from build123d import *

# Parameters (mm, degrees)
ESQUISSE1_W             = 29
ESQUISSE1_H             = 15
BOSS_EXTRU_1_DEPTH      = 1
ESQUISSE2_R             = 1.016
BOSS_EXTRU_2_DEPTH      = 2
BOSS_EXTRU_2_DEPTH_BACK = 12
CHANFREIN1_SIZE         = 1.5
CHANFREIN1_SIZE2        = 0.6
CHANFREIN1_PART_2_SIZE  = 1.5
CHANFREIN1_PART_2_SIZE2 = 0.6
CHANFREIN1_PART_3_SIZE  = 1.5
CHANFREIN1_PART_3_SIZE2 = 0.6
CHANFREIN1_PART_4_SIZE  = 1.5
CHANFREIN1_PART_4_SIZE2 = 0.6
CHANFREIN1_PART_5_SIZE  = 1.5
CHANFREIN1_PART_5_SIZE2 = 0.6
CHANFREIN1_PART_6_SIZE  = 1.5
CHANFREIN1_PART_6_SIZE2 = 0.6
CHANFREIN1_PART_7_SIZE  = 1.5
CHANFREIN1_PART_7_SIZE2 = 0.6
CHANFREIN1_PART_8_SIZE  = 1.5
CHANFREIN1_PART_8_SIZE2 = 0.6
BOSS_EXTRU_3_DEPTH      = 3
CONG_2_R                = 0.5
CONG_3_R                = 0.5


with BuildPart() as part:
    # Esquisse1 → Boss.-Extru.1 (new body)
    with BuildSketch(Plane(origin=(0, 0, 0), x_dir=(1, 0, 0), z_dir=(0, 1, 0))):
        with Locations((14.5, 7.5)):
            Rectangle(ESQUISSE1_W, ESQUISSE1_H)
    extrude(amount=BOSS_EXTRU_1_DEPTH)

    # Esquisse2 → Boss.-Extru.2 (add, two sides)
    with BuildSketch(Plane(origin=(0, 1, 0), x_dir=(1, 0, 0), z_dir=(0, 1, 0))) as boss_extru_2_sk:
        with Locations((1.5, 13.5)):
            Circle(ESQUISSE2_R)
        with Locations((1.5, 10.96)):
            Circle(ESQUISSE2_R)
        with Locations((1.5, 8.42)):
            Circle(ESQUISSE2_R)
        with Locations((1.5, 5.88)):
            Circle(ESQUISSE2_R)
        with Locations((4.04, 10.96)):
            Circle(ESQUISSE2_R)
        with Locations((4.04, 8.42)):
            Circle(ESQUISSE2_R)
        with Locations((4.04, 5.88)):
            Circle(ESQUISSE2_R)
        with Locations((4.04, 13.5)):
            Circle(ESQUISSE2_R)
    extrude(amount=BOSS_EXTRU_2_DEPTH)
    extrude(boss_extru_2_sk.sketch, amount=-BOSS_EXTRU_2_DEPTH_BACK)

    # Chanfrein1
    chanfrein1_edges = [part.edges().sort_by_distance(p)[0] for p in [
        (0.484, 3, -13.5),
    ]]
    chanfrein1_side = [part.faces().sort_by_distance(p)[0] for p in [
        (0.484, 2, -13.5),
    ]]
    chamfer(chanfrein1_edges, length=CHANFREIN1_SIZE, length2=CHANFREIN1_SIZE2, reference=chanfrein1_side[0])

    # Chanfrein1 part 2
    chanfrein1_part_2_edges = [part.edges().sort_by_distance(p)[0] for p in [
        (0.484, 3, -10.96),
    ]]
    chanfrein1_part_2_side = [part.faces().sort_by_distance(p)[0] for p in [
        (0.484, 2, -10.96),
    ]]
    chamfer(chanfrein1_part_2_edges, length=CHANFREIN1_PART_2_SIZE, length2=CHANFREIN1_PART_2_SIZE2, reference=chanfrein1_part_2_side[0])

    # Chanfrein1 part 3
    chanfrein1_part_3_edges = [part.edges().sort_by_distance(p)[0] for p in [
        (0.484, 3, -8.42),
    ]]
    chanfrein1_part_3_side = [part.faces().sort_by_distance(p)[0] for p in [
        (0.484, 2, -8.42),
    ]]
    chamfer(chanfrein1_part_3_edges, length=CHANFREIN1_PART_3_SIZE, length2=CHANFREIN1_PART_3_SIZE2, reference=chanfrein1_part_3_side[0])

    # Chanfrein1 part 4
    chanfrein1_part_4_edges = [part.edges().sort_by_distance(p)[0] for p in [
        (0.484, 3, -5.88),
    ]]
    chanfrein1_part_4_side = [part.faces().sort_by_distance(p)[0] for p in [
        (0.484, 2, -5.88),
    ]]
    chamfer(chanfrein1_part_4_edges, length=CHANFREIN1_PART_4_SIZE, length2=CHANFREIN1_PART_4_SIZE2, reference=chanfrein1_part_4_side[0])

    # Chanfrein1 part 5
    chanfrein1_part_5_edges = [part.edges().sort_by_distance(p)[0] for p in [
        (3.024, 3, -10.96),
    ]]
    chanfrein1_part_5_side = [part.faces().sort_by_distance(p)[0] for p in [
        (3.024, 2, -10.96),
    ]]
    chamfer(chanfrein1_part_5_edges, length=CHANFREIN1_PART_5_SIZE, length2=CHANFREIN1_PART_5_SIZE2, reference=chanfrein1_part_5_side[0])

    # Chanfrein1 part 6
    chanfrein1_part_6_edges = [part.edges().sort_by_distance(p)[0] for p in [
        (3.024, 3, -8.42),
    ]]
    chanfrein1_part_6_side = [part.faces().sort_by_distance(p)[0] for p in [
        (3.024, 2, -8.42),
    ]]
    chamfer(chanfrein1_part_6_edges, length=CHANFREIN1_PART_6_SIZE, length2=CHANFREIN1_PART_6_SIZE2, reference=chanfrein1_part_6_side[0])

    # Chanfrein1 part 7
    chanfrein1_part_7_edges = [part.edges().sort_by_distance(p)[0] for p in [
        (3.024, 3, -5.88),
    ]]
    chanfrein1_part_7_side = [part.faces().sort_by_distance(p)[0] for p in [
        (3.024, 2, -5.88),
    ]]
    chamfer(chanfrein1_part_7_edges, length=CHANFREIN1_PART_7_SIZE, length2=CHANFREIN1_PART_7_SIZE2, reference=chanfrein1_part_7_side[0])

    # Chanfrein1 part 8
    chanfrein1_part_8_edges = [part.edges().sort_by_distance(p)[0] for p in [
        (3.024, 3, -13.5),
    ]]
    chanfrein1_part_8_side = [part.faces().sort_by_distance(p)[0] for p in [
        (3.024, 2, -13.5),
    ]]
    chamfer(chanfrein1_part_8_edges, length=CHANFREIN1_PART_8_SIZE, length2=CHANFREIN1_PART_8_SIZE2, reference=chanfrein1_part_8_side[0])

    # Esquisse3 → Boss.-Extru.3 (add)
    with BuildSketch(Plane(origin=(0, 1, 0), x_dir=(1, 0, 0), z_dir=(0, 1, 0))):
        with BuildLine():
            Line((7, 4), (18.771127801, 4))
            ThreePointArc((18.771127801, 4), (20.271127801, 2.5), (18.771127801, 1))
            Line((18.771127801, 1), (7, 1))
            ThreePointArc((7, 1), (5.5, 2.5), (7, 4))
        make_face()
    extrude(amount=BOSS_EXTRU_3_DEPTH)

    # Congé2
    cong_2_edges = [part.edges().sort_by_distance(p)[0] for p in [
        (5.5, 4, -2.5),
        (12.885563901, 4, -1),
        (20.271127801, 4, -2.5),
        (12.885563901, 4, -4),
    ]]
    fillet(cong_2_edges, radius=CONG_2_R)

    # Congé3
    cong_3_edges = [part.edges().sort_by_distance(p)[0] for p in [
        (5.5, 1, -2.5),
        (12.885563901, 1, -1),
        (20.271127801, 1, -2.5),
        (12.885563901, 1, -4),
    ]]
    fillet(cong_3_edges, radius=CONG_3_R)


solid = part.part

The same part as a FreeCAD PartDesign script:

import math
import FreeCAD as App
import Part
import Sketcher

V = App.Vector
Q = App.Units.Quantity


def edges_at(feature, points):
    """Names of the edges that pass closest to the given points."""
    edges = feature.Shape.Edges
    near = lambda p: min(range(len(edges)), key=lambda i: edges[i].distToShape(Part.Vertex(*p))[0])
    return sorted({f"Edge{near(p) + 1}" for p in points})


def add_polygon(sketch, points):
    """Adds a closed chain of lines whose ends are joined by coincident constraints."""
    first, n = sketch.GeometryCount, len(points)
    for a, b in zip(points, points[1:] + points[:1]):
        sketch.addGeometry(Part.LineSegment(App.Vector(*a, 0), App.Vector(*b, 0)), False)
    for i in range(n):
        sketch.addConstraint(Sketcher.Constraint("Coincident", first + i, 2, first + (i + 1) % n, 1))

doc = App.newDocument("Part")
body = doc.addObject("PartDesign::Body", "Body")

sketch1 = body.newObject("Sketcher::SketchObject", "Sketch")
sketch1.AttachmentSupport = (doc.getObject("XZ_Plane"), [""])
sketch1.MapMode = "FlatFace"
add_polygon(sketch1, [(0, -15), (0, 0), (29, 0), (29, -15)])
sketch1.addConstraint([
    Sketcher.Constraint("Vertical", 0),
    Sketcher.Constraint("Horizontal", 1),
    Sketcher.Constraint("Vertical", 2),
    Sketcher.Constraint("Horizontal", 3),
    Sketcher.Constraint("Coincident", 0, 2, -1, 1),
    Sketcher.Constraint("DistanceX", 1, 1, 1, 2, Q("29 mm")),
    Sketcher.Constraint("DistanceY", 0, 1, 0, 2, Q("15 mm")),
])
pad1 = body.newObject("PartDesign::Pad", "Pad")
pad1.Profile = sketch1
pad1.Length = 1
pad1.Reversed = True

sketch2 = body.newObject("Sketcher::SketchObject", "Sketch001")
sketch2.AttachmentSupport = (doc.getObject("XZ_Plane"), [""])
sketch2.MapMode = "FlatFace"
sketch2.AttachmentOffset = App.Placement(V(0, 0, -1), App.Rotation())
sketch2.addGeometry([
    Part.Circle(V(1.5, -13.5, 0), V(0, 0, 1), 1.016),
    Part.Circle(V(1.5, -10.96, 0), V(0, 0, 1), 1.016),
    Part.Circle(V(1.5, -8.42, 0), V(0, 0, 1), 1.016),
    Part.Circle(V(1.5, -5.88, 0), V(0, 0, 1), 1.016),
    Part.Circle(V(4.04, -10.96, 0), V(0, 0, 1), 1.016),
    Part.Circle(V(4.04, -8.42, 0), V(0, 0, 1), 1.016),
    Part.Circle(V(4.04, -5.88, 0), V(0, 0, 1), 1.016),
    Part.Circle(V(4.04, -13.5, 0), V(0, 0, 1), 1.016),
], False)
sketch2.addConstraint([
    Sketcher.Constraint("Equal", 0, 1),
    Sketcher.Constraint("Equal", 1, 2),
    Sketcher.Constraint("Equal", 2, 3),
    Sketcher.Constraint("Equal", 3, 4),
    Sketcher.Constraint("Equal", 4, 5),
    Sketcher.Constraint("Equal", 5, 6),
    Sketcher.Constraint("Equal", 6, 7),
    Sketcher.Constraint("Horizontal", 1, 3, 4, 3),
    Sketcher.Constraint("Horizontal", 2, 3, 5, 3),
    Sketcher.Constraint("Horizontal", 3, 3, 6, 3),
    Sketcher.Constraint("Horizontal", 0, 3, 7, 3),
    Sketcher.Constraint("Vertical", 0, 3, 1, 3),
    Sketcher.Constraint("Vertical", 1, 3, 2, 3),
    Sketcher.Constraint("Vertical", 2, 3, 3, 3),
    Sketcher.Constraint("Vertical", 4, 3, 5, 3),
    Sketcher.Constraint("Vertical", 5, 3, 6, 3),
    Sketcher.Constraint("Vertical", 6, 3, 7, 3),
    Sketcher.Constraint("Diameter", 0, Q("2.032 mm")),
    Sketcher.Constraint("DistanceX", -1, 1, 0, 3, Q("1.5 mm")),
    Sketcher.Constraint("DistanceY", 0, 3, -1, 1, Q("13.5 mm")),
    Sketcher.Constraint("DistanceY", 1, 3, -1, 1, Q("10.96 mm")),
    Sketcher.Constraint("DistanceY", 2, 3, -1, 1, Q("8.42 mm")),
    Sketcher.Constraint("DistanceY", 3, 3, -1, 1, Q("5.88 mm")),
    Sketcher.Constraint("DistanceX", -1, 1, 4, 3, Q("4.04 mm")),
])
pad2 = body.newObject("PartDesign::Pad", "Pad001")
pad2.Profile = sketch2
pad2.Type = "TwoLengths"
pad2.Length = 2
pad2.Length2 = 12
pad2.Reversed = True
doc.recompute()

chamfer = body.newObject("PartDesign::Chamfer", "Chamfer")
chamfer.Base = (pad2, edges_at(pad2, [(0.484, 3, -13.5)]))
chamfer.ChamferType = "Two distances"
chamfer.Size = 1.5
chamfer.Size2 = 0.6
doc.recompute()

chamfer2 = body.newObject("PartDesign::Chamfer", "Chamfer001")
chamfer2.Base = (chamfer, edges_at(chamfer, [(0.484, 3, -10.96)]))
chamfer2.ChamferType = "Two distances"
chamfer2.Size = 1.5
chamfer2.Size2 = 0.6
doc.recompute()

chamfer3 = body.newObject("PartDesign::Chamfer", "Chamfer002")
chamfer3.Base = (chamfer2, edges_at(chamfer2, [(0.484, 3, -8.42)]))
chamfer3.ChamferType = "Two distances"
chamfer3.Size = 1.5
chamfer3.Size2 = 0.6
doc.recompute()

chamfer4 = body.newObject("PartDesign::Chamfer", "Chamfer003")
chamfer4.Base = (chamfer3, edges_at(chamfer3, [(0.484, 3, -5.88)]))
chamfer4.ChamferType = "Two distances"
chamfer4.Size = 1.5
chamfer4.Size2 = 0.6
doc.recompute()

chamfer5 = body.newObject("PartDesign::Chamfer", "Chamfer004")
chamfer5.Base = (chamfer4, edges_at(chamfer4, [(3.024, 3, -10.96)]))
chamfer5.ChamferType = "Two distances"
chamfer5.Size = 1.5
chamfer5.Size2 = 0.6
doc.recompute()

chamfer6 = body.newObject("PartDesign::Chamfer", "Chamfer005")
chamfer6.Base = (chamfer5, edges_at(chamfer5, [(3.024, 3, -8.42)]))
chamfer6.ChamferType = "Two distances"
chamfer6.Size = 1.5
chamfer6.Size2 = 0.6
doc.recompute()

chamfer7 = body.newObject("PartDesign::Chamfer", "Chamfer006")
chamfer7.Base = (chamfer6, edges_at(chamfer6, [(3.024, 3, -5.88)]))
chamfer7.ChamferType = "Two distances"
chamfer7.Size = 1.5
chamfer7.Size2 = 0.6
doc.recompute()

chamfer8 = body.newObject("PartDesign::Chamfer", "Chamfer007")
chamfer8.Base = (chamfer7, edges_at(chamfer7, [(3.024, 3, -13.5)]))
chamfer8.ChamferType = "Two distances"
chamfer8.Size = 1.5
chamfer8.Size2 = 0.6

sketch3 = body.newObject("Sketcher::SketchObject", "Sketch002")
sketch3.AttachmentSupport = (doc.getObject("XZ_Plane"), [""])
sketch3.MapMode = "FlatFace"
sketch3.AttachmentOffset = App.Placement(V(0, 0, -1), App.Rotation())
sketch3.addGeometry([
    Part.LineSegment(V(18.771128, -4, 0), V(7, -4, 0)),
    Part.ArcOfCircle(Part.Circle(V(7, -2.5, 0), V(0, 0, 1), 1.5), math.radians(90), math.radians(270)),
    Part.LineSegment(V(7, -1, 0), V(18.771128, -1, 0)),
    Part.ArcOfCircle(Part.Circle(V(18.771128, -2.5, 0), V(0, 0, 1), 1.5), math.radians(-90), math.radians(90)),
], False)
sketch3.addConstraint([
    Sketcher.Constraint("Tangent", 0, 2, 1, 2),
    Sketcher.Constraint("Tangent", 1, 1, 2, 1),
    Sketcher.Constraint("Tangent", 2, 2, 3, 2),
    Sketcher.Constraint("Tangent", 3, 1, 0, 1),
    Sketcher.Constraint("Horizontal", 0),
    Sketcher.Constraint("Horizontal", 2),
    Sketcher.Constraint("Radius", 1, Q("1.5 mm")),
    Sketcher.Constraint("DistanceX", -1, 1, 1, 3, Q("7 mm")),
    Sketcher.Constraint("DistanceY", 0, 2, -1, 1, Q("4 mm")),
    Sketcher.Constraint("DistanceX", 0, 2, 0, 1, Q("11.771128 mm")),
])
pad3 = body.newObject("PartDesign::Pad", "Pad002")
pad3.Profile = sketch3
pad3.Length = 3
pad3.Reversed = True
doc.recompute()

fillet = body.newObject("PartDesign::Fillet", "Fillet")
fillet.Base = (pad3, edges_at(pad3, [
    (5.5, 4, -2.5),
    (12.886, 4, -1),
    (20.271, 4, -2.5),
    (12.886, 4, -4),
]))
fillet.Radius = 0.5
doc.recompute()

fillet2 = body.newObject("PartDesign::Fillet", "Fillet001")
fillet2.Base = (fillet, edges_at(fillet, [
    (5.5, 1, -2.5),
    (12.886, 1, -1),
    (20.271, 1, -2.5),
    (12.886, 1, -4),
]))
fillet2.Radius = 0.5

doc.recompute()
